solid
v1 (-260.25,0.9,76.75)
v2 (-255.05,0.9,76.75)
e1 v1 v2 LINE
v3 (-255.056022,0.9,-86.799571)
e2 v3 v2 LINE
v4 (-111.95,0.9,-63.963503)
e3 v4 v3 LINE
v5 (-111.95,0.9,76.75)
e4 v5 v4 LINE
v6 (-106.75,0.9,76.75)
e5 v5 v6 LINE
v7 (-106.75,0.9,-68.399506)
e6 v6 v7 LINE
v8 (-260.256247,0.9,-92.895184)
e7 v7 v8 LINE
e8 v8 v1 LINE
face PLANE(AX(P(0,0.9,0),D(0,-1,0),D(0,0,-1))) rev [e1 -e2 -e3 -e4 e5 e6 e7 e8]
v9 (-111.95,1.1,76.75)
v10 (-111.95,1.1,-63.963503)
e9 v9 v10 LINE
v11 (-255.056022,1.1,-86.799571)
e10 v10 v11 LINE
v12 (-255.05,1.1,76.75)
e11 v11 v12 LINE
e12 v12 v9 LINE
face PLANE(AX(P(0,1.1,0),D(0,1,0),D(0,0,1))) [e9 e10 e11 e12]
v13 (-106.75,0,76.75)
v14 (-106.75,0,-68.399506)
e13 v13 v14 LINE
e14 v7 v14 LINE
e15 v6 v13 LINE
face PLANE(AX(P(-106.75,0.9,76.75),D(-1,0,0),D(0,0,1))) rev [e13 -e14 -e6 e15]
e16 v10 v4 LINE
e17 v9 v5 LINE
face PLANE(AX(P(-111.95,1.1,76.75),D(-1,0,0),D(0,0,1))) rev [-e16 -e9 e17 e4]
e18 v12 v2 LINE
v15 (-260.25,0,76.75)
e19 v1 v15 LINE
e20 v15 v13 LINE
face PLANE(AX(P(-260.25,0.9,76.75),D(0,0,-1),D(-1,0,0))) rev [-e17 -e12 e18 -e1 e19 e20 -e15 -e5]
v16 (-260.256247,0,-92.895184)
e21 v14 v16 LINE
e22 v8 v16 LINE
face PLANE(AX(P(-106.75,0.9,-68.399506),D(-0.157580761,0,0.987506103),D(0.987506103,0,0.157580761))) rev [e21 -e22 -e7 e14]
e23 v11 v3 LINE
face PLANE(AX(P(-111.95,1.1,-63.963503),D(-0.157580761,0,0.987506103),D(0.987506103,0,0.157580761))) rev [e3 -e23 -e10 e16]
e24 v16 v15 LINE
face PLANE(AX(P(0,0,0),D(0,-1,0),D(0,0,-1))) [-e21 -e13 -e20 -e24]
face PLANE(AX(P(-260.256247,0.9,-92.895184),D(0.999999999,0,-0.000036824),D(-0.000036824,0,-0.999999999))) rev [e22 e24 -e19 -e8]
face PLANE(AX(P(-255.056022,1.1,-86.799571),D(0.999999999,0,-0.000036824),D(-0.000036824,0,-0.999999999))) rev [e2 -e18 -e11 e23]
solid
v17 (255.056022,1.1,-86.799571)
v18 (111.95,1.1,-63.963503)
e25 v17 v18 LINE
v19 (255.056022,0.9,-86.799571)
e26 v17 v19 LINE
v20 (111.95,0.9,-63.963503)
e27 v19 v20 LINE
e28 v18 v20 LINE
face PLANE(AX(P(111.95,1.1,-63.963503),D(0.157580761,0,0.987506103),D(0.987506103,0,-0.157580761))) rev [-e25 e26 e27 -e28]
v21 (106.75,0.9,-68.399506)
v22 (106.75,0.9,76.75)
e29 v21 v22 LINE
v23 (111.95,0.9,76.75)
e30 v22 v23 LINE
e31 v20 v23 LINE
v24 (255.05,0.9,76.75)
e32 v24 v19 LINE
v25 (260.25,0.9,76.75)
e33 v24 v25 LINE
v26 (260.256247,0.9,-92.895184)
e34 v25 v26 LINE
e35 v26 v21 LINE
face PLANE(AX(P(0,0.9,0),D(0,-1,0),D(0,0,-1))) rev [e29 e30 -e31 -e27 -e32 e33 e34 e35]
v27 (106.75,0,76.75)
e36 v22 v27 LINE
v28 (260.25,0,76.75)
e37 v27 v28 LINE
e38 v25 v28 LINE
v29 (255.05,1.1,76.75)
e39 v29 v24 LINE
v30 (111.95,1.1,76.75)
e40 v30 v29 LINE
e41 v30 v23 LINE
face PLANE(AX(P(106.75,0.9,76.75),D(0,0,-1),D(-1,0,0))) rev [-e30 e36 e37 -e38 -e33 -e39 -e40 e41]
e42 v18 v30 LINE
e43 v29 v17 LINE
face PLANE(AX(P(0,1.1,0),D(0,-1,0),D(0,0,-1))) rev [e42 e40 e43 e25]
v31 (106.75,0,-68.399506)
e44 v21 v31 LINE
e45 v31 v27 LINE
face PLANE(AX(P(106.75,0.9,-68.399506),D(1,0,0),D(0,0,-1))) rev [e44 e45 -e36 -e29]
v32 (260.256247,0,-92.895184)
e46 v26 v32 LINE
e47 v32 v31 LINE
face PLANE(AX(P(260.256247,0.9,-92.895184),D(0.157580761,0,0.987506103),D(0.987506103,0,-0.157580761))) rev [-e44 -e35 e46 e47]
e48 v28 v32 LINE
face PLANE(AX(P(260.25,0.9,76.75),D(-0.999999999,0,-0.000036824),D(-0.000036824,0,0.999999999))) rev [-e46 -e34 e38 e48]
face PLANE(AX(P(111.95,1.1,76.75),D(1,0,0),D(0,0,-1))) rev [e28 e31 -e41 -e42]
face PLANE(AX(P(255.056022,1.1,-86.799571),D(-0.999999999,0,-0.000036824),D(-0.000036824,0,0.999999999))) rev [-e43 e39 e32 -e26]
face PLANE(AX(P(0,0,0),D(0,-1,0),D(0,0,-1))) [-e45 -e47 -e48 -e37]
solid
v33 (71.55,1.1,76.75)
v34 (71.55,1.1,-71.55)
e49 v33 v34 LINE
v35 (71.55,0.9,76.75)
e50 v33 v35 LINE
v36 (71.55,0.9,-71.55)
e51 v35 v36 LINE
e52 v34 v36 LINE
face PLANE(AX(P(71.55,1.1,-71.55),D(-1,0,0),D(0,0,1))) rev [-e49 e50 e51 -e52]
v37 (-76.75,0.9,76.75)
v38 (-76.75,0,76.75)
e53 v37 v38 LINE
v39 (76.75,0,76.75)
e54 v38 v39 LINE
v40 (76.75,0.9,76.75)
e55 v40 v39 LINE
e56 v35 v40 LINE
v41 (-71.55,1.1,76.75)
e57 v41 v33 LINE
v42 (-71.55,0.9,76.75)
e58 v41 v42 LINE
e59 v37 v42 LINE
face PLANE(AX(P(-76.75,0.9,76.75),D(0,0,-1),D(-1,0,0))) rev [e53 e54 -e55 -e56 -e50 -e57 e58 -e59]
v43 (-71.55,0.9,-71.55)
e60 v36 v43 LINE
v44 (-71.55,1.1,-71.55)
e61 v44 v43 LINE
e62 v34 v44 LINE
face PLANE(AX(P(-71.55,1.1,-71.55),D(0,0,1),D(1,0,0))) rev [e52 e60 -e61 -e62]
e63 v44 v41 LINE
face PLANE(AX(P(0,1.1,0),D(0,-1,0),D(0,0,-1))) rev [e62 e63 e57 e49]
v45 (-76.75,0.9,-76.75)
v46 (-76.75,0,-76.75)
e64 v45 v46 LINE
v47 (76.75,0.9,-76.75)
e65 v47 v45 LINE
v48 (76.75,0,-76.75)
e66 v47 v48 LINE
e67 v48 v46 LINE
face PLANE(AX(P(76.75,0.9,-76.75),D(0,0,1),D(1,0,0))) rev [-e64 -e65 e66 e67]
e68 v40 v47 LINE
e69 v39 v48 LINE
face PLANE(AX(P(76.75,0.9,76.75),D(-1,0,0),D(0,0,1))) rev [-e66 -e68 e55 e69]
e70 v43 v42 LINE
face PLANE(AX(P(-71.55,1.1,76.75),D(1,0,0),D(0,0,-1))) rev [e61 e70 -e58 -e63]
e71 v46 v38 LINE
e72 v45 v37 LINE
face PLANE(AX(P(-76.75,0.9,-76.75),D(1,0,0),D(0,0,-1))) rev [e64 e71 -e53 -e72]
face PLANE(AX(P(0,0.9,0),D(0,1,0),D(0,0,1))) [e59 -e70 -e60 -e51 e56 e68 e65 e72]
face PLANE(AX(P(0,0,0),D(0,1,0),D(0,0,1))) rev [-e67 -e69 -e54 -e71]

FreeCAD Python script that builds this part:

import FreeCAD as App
import Part
import Sketcher


def add_polygon(sketch, points):
    """Adds a closed chain of lines whose ends are joined by coincident constraints."""
    first, n = sketch.GeometryCount, len(points)
    for a, b in zip(points, points[1:] + points[:1]):
        sketch.addGeometry(Part.LineSegment(App.Vector(*a, 0), App.Vector(*b, 0)), False)
    for i in range(n):
        sketch.addConstraint(Sketcher.Constraint("Coincident", first + i, 2, first + (i + 1) % n, 1))

doc = App.newDocument("Part")
body = doc.addObject("PartDesign::Body", "Body")

# Sketch on XZ plane
sketch1 = body.newObject("Sketcher::SketchObject", "Sketch")
sketch1.AttachmentSupport = (doc.getObject("XZ_Plane"), [""])
sketch1.MapMode = "FlatFace"
add_polygon(sketch1, [(-76.75, -76.75), (-76.75, 76.75), (76.75, 76.75), (76.75, -76.75)])  # lines 0-3
sketch1.addConstraint(Sketcher.Constraint("Vertical", 0))
sketch1.addConstraint(Sketcher.Constraint("Horizontal", 1))
sketch1.addConstraint(Sketcher.Constraint("Vertical", 2))
sketch1.addConstraint(Sketcher.Constraint("Horizontal", 3))
sketch1.addConstraint(Sketcher.Constraint("Symmetric", 0, 2, 2, 2, -1, 1))
sketch1.addConstraint(Sketcher.Constraint("Equal", 3, 0))
sketch1.addConstraint(Sketcher.Constraint("DistanceX", 1, 1, 1, 2, 153.5))
pad1 = body.newObject("PartDesign::Pad", "Pad")
pad1.Profile = sketch1
pad1.Length = 0.9
pad1.Reversed = True
body2 = doc.addObject("PartDesign::Body", "Body001")

# Sketch on XZ plane
sketch2 = body2.newObject("Sketcher::SketchObject", "Sketch001")
sketch2.AttachmentSupport = (doc.getObject("XZ_Plane001"), [""])
sketch2.MapMode = "FlatFace"
add_polygon(sketch2, [(-260.256247, -92.895184), (-260.25, 76.75), (-106.75, 76.75), (-106.75, -68.399506)])  # lines 0-3
sketch2.addConstraint(Sketcher.Constraint("Horizontal", 1))
sketch2.addConstraint(Sketcher.Constraint("Vertical", 2))
sketch2.addConstraint(Sketcher.Constraint("DistanceX", 1, 1, 1, 2, 153.5))
sketch2.addConstraint(Sketcher.Constraint("DistanceX", 0, 2, -1, 1, 260.25))
sketch2.addConstraint(Sketcher.Constraint("DistanceY", -1, 1, 0, 2, 76.75))
sketch2.addConstraint(Sketcher.Constraint("DistanceY", 2, 2, 2, 1, 145.149506))
sketch2.addConstraint(Sketcher.Constraint("Distance", 0, 169.645184))
sketch2.addConstraint(Sketcher.Constraint("Distance", 3, 155.448403))
pad2 = body2.newObject("PartDesign::Pad", "Pad001")
pad2.Profile = sketch2
pad2.Length = 0.9
pad2.Reversed = True
body3 = doc.addObject("PartDesign::Body", "Body002")

# Sketch on XZ plane
sketch3 = body3.newObject("Sketcher::SketchObject", "Sketch002")
sketch3.AttachmentSupport = (doc.getObject("XZ_Plane002"), [""])
sketch3.MapMode = "FlatFace"
add_polygon(sketch3, [(260.256247, -92.895184), (106.75, -68.399506), (106.75, 76.75), (260.25, 76.75)])  # lines 0-3
sketch3.addConstraint(Sketcher.Constraint("Vertical", 1))
sketch3.addConstraint(Sketcher.Constraint("Horizontal", 2))
sketch3.addConstraint(Sketcher.Constraint("DistanceX", 2, 1, 2, 2, 153.5))
sketch3.addConstraint(Sketcher.Constraint("DistanceX", -1, 1, 0, 2, 106.75))
sketch3.addConstraint(Sketcher.Constraint("DistanceY", -1, 1, 1, 2, 76.75))
sketch3.addConstraint(Sketcher.Constraint("DistanceY", 1, 1, 1, 2, 145.149506))
sketch3.addConstraint(Sketcher.Constraint("Distance", 0, 155.448403))
sketch3.addConstraint(Sketcher.Constraint("Distance", 3, 169.645184))
pad3 = body3.newObject("PartDesign::Pad", "Pad002")
pad3.Profile = sketch3
pad3.Length = 0.9
pad3.Reversed = True
body.AllowCompound = True
doc.recompute()

boolean = body.newObject("PartDesign::Boolean", "Boolean")
boolean.Type = "Fuse"
boolean.addObjects([body2])
doc.recompute()

boolean2 = body.newObject("PartDesign::Boolean", "Boolean001")
boolean2.Type = "Fuse"
boolean2.addObjects([body3])

# Sketch on XZ plane
sketch4 = body.newObject("Sketcher::SketchObject", "Sketch003")
sketch4.AttachmentSupport = (doc.getObject("XZ_Plane"), [""])
sketch4.MapMode = "FlatFace"
sketch4.AttachmentOffset = App.Placement(App.Vector(0, 0, -0.9), App.Rotation())
add_polygon(sketch4, [(-71.55, -71.55), (-71.55, 76.75), (71.55, 76.75), (71.55, -71.55)])  # lines 0-3
add_polygon(sketch4, [(-111.95, 76.75), (-111.95, -63.963503), (-255.056022, -86.799571), (-255.05, 76.75)])  # lines 4-7
add_polygon(sketch4, [(111.95, -63.963503), (111.95, 76.75), (255.05, 76.75), (255.056022, -86.799571)])  # lines 8-11
sketch4.addConstraint(Sketcher.Constraint("Vertical", 0))
sketch4.addConstraint(Sketcher.Constraint("Horizontal", 1))
sketch4.addConstraint(Sketcher.Constraint("Vertical", 2))
sketch4.addConstraint(Sketcher.Constraint("Horizontal", 3))
sketch4.addConstraint(Sketcher.Constraint("Vertical", 4))
sketch4.addConstraint(Sketcher.Constraint("Horizontal", 7))
sketch4.addConstraint(Sketcher.Constraint("Vertical", 8))
sketch4.addConstraint(Sketcher.Constraint("Horizontal", 9))
sketch4.addConstraint(Sketcher.Constraint("Symmetric", 7, 2, 8, 2, -2))
sketch4.addConstraint(Sketcher.Constraint("Symmetric", 5, 2, 10, 2, -2))
sketch4.addConstraint(Sketcher.Constraint("Horizontal", 1, 2, 6, 2))
sketch4.addConstraint(Sketcher.Constraint("Horizontal", 4, 2, 11, 2))
sketch4.addConstraint(Sketcher.Constraint("Equal", 3, 7))
sketch4.addConstraint(Sketcher.Constraint("Equal", 7, 9))
sketch4.addConstraint(Sketcher.Constraint("DistanceX", 1, 1, 1, 2, 143.1))
sketch4.addConstraint(Sketcher.Constraint("DistanceY", 0, 1, 0, 2, 148.3))
sketch4.addConstraint(Sketcher.Constraint("DistanceX", 4, 2, 3, 2, 40.4))
sketch4.addConstraint(Sketcher.Constraint("DistanceX", 1, 2, 8, 2, 40.4))
sketch4.addConstraint(Sketcher.Constraint("DistanceY", -1, 1, 0, 2, 76.75))
sketch4.addConstraint(Sketcher.Constraint("Distance", 6, 163.549571))
sketch4.addConstraint(Sketcher.Constraint("DistanceY", 4, 2, 4, 1, 140.713503))
sketch4.addConstraint(Sketcher.Constraint("Distance", 5, 144.916595))
pad4 = body.newObject("PartDesign::Pad", "Pad003")
pad4.Profile = sketch4
pad4.Length = 0.2
pad4.Reversed = True

doc.recompute()
